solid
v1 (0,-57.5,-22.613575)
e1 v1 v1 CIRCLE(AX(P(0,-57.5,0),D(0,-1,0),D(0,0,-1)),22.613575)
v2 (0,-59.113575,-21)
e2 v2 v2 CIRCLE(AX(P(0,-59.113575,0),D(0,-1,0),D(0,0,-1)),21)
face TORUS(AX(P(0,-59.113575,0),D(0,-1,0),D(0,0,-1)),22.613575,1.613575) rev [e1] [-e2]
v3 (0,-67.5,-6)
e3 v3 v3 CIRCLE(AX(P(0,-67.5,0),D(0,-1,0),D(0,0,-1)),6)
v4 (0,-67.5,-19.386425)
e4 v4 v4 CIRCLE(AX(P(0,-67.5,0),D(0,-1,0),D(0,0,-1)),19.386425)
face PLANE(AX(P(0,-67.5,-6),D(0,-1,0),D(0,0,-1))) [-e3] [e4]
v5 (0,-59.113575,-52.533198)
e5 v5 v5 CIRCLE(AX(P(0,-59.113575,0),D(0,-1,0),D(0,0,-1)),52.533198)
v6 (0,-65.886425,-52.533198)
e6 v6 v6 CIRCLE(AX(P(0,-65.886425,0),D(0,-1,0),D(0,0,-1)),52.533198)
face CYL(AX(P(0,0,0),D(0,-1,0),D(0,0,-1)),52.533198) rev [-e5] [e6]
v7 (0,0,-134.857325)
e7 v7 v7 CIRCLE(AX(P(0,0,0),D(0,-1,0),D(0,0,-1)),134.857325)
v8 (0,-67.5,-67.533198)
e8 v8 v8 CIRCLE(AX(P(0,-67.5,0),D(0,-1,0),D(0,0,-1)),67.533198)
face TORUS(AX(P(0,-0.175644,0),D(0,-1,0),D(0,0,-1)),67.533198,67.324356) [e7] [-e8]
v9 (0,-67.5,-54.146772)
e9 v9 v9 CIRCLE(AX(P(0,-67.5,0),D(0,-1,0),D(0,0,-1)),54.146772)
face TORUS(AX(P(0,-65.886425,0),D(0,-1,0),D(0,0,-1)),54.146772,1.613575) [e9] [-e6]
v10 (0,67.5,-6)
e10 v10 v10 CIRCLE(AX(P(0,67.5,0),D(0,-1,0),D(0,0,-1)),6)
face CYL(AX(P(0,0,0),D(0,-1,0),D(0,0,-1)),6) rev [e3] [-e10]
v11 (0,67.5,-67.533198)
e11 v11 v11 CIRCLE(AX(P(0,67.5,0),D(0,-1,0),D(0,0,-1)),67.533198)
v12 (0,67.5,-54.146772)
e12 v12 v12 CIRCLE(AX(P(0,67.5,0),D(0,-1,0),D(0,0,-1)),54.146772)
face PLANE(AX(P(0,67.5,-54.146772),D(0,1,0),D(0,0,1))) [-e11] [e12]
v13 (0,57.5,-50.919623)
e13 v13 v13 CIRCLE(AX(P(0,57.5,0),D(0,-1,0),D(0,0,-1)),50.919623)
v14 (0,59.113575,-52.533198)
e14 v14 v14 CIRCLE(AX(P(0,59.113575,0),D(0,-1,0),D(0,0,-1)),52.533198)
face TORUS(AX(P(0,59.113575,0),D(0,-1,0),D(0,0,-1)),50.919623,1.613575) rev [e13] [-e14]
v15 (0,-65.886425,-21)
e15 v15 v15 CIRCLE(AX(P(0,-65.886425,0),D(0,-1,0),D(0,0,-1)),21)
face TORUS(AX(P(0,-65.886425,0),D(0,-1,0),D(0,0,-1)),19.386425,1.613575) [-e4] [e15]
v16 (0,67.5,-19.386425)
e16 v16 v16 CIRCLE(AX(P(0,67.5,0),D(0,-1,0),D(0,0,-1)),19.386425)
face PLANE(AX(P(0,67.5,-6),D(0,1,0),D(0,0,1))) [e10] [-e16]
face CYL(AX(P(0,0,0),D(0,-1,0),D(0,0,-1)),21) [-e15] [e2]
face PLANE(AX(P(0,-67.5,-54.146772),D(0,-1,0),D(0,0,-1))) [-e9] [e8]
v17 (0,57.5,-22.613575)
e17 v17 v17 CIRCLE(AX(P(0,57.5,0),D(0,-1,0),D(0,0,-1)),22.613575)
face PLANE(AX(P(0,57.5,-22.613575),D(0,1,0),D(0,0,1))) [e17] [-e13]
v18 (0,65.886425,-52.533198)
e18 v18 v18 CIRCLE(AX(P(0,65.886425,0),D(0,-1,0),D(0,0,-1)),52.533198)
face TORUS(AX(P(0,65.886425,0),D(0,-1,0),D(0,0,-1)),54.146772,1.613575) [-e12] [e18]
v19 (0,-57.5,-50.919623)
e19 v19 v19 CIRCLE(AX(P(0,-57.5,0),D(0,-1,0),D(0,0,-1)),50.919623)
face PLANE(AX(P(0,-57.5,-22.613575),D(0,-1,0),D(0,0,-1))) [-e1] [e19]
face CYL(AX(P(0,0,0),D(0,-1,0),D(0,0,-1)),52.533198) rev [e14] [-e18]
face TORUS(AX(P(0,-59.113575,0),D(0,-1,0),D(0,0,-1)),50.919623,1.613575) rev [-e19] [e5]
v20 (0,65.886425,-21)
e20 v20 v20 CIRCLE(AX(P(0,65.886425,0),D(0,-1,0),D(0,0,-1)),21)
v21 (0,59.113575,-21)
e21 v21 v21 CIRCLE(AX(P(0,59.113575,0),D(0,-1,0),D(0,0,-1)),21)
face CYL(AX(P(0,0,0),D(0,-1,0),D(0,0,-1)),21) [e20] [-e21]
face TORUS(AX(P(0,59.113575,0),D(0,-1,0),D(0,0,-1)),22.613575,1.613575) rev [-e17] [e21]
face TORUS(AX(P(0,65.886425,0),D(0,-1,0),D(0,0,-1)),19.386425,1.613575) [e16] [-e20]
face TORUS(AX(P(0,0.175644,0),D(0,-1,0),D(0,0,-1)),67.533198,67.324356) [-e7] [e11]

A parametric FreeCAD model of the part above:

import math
import FreeCAD as App
import Part
import Sketcher

V = App.Vector

doc = App.newDocument("Part")
params = doc.addObject("Spreadsheet::Sheet", "Params")
for row, (alias, value) in enumerate([
    ("sketch1_width", "135 mm"),
    ("revolution_angle", "360 deg"),
], start=1):
    params.set(f"A{row}", alias)
    params.set(f"B{row}", "=" + value)
    params.setAlias(f"B{row}", alias)

body = doc.addObject("PartDesign::Body", "Body")

# Sketch on YZ plane
sketch1 = body.newObject("Sketcher::SketchObject", "Sketch")
sketch1.AttachmentSupport = (doc.getObject("YZ_Plane"), [""])
sketch1.MapMode = "FlatFace"
sketch1.addGeometry(Part.LineSegment(V(67.5, -6, 0), V(-67.5, -6, 0)), False)
sketch1.addGeometry(Part.LineSegment(V(-67.5, -6, 0), V(-67.5, -19.386425, 0)), False)
sketch1.addGeometry(Part.ArcOfCircle(Part.Circle(V(-65.886425, -19.386425, 0), V(0, 0, 1), 1.613575), math.radians(-180), math.radians(-90)), False)
sketch1.addGeometry(Part.LineSegment(V(-65.886425, -21, 0), V(-59.113575, -21, 0)), False)
sketch1.addGeometry(Part.ArcOfCircle(Part.Circle(V(-59.113575, -22.613575, 0), V(0, 0, 1), 1.613575), math.radians(0), math.radians(90)), False)
sketch1.addGeometry(Part.LineSegment(V(-57.5, -22.613575, 0), V(-57.5, -50.919623, 0)), False)
sketch1.addGeometry(Part.ArcOfCircle(Part.Circle(V(-59.113575, -50.919623, 0), V(0, 0, 1), 1.613575), math.radians(-90), math.radians(0)), False)
sketch1.addGeometry(Part.LineSegment(V(-59.113575, -52.533198, 0), V(-65.886425, -52.533198, 0)), False)
sketch1.addGeometry(Part.ArcOfCircle(Part.Circle(V(-65.886425, -54.146772, 0), V(0, 0, 1), 1.613575), math.radians(90), math.radians(180)), False)
sketch1.addGeometry(Part.LineSegment(V(-67.5, -54.146772, 0), V(-67.5, -67.533198, 0)), False)
sketch1.addGeometry(Part.ArcOfCircle(Part.Circle(V(-0.175644, -67.533198, 0), V(0, 0, 1), 67.324356), math.radians(180), math.radians(270.14948)), False)
sketch1.addGeometry(Part.ArcOfCircle(Part.Circle(V(0.175644, -67.533198, 0), V(0, 0, 1), 67.324356), math.radians(-90.14948), math.radians(0)), False)
sketch1.addGeometry(Part.LineSegment(V(67.5, -67.533198, 0), V(67.5, -54.146772, 0)), False)
sketch1.addGeometry(Part.ArcOfCircle(Part.Circle(V(65.886425, -54.146772, 0), V(0, 0, 1), 1.613575), math.radians(0), math.radians(90)), False)
sketch1.addGeometry(Part.LineSegment(V(65.886425, -52.533198, 0), V(59.113575, -52.533198, 0)), False)
sketch1.addGeometry(Part.ArcOfCircle(Part.Circle(V(59.113575, -50.919623, 0), V(0, 0, 1), 1.613575), math.radians(180), math.radians(270)), False)
sketch1.addGeometry(Part.LineSegment(V(57.5, -50.919623, 0), V(57.5, -22.613575, 0)), False)
sketch1.addGeometry(Part.ArcOfCircle(Part.Circle(V(59.113575, -22.613575, 0), V(0, 0, 1), 1.613575), math.radians(90), math.radians(180)), False)
sketch1.addGeometry(Part.LineSegment(V(59.113575, -21, 0), V(65.886425, -21, 0)), False)
sketch1.addGeometry(Part.ArcOfCircle(Part.Circle(V(65.886425, -19.386425, 0), V(0, 0, 1), 1.613575), math.radians(-90), math.radians(0)), False)
sketch1.addGeometry(Part.LineSegment(V(67.5, -19.386425, 0), V(67.5, -6, 0)), False)
sketch1.addConstraint(Sketcher.Constraint("Coincident", 0, 2, 1, 1))
sketch1.addConstraint(Sketcher.Constraint("Tangent", 1, 2, 2, 1))
sketch1.addConstraint(Sketcher.Constraint("Tangent", 2, 2, 3, 1))
sketch1.addConstraint(Sketcher.Constraint("Tangent", 3, 2, 4, 2))
sketch1.addConstraint(Sketcher.Constraint("Tangent", 4, 1, 5, 1))
sketch1.addConstraint(Sketcher.Constraint("Tangent", 5, 2, 6, 2))
sketch1.addConstraint(Sketcher.Constraint("Tangent", 6, 1, 7, 1))
sketch1.addConstraint(Sketcher.Constraint("Tangent", 7, 2, 8, 1))
sketch1.addConstraint(Sketcher.Constraint("Tangent", 8, 2, 9, 1))
sketch1.addConstraint(Sketcher.Constraint("Tangent", 9, 2, 10, 1))
sketch1.addConstraint(Sketcher.Constraint("Coincident", 10, 2, 11, 1))
sketch1.addConstraint(Sketcher.Constraint("Tangent", 11, 2, 12, 1))
sketch1.addConstraint(Sketcher.Constraint("Tangent", 12, 2, 13, 1))
sketch1.addConstraint(Sketcher.Constraint("Tangent", 13, 2, 14, 1))
sketch1.addConstraint(Sketcher.Constraint("Tangent", 14, 2, 15, 2))
sketch1.addConstraint(Sketcher.Constraint("Tangent", 15, 1, 16, 1))
sketch1.addConstraint(Sketcher.Constraint("Tangent", 16, 2, 17, 2))
sketch1.addConstraint(Sketcher.Constraint("Tangent", 17, 1, 18, 1))
sketch1.addConstraint(Sketcher.Constraint("Tangent", 18, 2, 19, 1))
sketch1.addConstraint(Sketcher.Constraint("Tangent", 19, 2, 20, 1))
sketch1.addConstraint(Sketcher.Constraint("Coincident", 20, 2, 0, 1))
sketch1.addConstraint(Sketcher.Constraint("Horizontal", 0))
sketch1.addConstraint(Sketcher.Constraint("Vertical", 1))
sketch1.addConstraint(Sketcher.Constraint("Horizontal", 3))
sketch1.addConstraint(Sketcher.Constraint("Vertical", 5))
sketch1.addConstraint(Sketcher.Constraint("Horizontal", 7))
sketch1.addConstraint(Sketcher.Constraint("Vertical", 9))
sketch1.addConstraint(Sketcher.Constraint("Vertical", 12))
sketch1.addConstraint(Sketcher.Constraint("Horizontal", 14))
sketch1.addConstraint(Sketcher.Constraint("Vertical", 16))
sketch1.addConstraint(Sketcher.Constraint("Horizontal", 18))
sketch1.addConstraint(Sketcher.Constraint("Vertical", 20))
sketch1.addConstraint(Sketcher.Constraint("Equal", 2, 4))
sketch1.addConstraint(Sketcher.Constraint("Equal", 4, 6))
sketch1.addConstraint(Sketcher.Constraint("Equal", 6, 8))
sketch1.addConstraint(Sketcher.Constraint("Equal", 10, 11))
sketch1.addConstraint(Sketcher.Constraint("Equal", 8, 13))
sketch1.addConstraint(Sketcher.Constraint("Equal", 13, 15))
sketch1.addConstraint(Sketcher.Constraint("Equal", 15, 17))
sketch1.addConstraint(Sketcher.Constraint("Equal", 17, 19))
sketch1.addConstraint(Sketcher.Constraint("Symmetric", 10, 3, 11, 3, -2))
sketch1.addConstraint(Sketcher.Constraint("Symmetric", 6, 3, 15, 3, -2))
sketch1.addConstraint(Sketcher.Constraint("Symmetric", 2, 3, 19, 3, -2))
sketch1.addConstraint(Sketcher.Constraint("Vertical", 2, 3, 8, 3))
sketch1.addConstraint(Sketcher.Constraint("Equal", 1, 9))
sketch1.addConstraint(Sketcher.Constraint("DistanceX", 0, 2, 0, 1, 135.0))
sketch1.addConstraint(Sketcher.Constraint("DistanceY", 0, 2, -1, 1, 6.0))
sketch1.addConstraint(Sketcher.Constraint("DistanceY", 2, 2, -1, 1, 21.0))
sketch1.addConstraint(Sketcher.Constraint("DistanceX", 6, 3, 13, 3, 125.0))
sketch1.addConstraint(Sketcher.Constraint("Radius", 2, 1.613575))
sketch1.addConstraint(Sketcher.Constraint("Radius", 10, 67.324356))
sketch1.addConstraint(Sketcher.Constraint("DistanceY", 5, 2, 5, 1, 28.306048))
sketch1.setExpression("Constraints[45]", "Params.sketch1_width")
revolution = body.newObject("PartDesign::Revolution", "Revolution")
revolution.Profile = sketch1
revolution.ReferenceAxis = (sketch1, ["H_Axis"])
revolution.setExpression("Angle", "Params.revolution_angle")

doc.recompute()
